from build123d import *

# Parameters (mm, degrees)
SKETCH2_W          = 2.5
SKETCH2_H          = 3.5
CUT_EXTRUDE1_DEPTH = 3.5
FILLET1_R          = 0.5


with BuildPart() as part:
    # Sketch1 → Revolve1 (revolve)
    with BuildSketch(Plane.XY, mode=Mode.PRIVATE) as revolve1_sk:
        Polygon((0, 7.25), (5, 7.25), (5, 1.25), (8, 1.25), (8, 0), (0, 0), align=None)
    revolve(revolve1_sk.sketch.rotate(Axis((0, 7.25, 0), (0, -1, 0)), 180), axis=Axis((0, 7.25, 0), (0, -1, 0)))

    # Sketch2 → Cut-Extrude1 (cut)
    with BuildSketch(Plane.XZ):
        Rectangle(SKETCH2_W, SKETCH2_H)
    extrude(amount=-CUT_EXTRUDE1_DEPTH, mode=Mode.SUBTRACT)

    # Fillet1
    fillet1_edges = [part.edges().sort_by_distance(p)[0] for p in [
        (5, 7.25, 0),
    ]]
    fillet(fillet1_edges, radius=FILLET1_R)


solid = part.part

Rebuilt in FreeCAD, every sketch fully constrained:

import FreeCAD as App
import Part
import Sketcher
from FreeCAD import Vector
Q = App.Units.Quantity


def edges_at(feature, points):
    """Names of the edges that pass closest to the given points."""
    edges = feature.Shape.Edges
    near = lambda p: min(range(len(edges)), key=lambda i: edges[i].distToShape(Part.Vertex(*p))[0])
    return sorted({f"Edge{near(p) + 1}" for p in points})


def add_polygon(sketch, points):
    """Adds a closed chain of lines whose ends are joined by coincident constraints."""
    first, n = sketch.GeometryCount, len(points)
    for a, b in zip(points, points[1:] + points[:1]):
        sketch.addGeometry(Part.LineSegment(App.Vector(*a, 0), App.Vector(*b, 0)), False)
    for i in range(n):
        sketch.addConstraint(Sketcher.Constraint("Coincident", first + i, 2, first + (i + 1) % n, 1))

doc = App.newDocument("Part")
body = doc.addObject("PartDesign::Body", "Body")

# Sketch on XY plane
sketch1 = doc.addObject("Sketcher::SketchObject", "Sketch")
body.addObject(sketch1)
sketch1.AttachmentSupport = (doc.XY_Plane, [""])
sketch1.MapMode = "FlatFace"
add_polygon(sketch1, [(5, 7.2), (0, 7.2), (0, 0), (8, 0), (8, 1.2), (5, 1.2)])  # lines 0-5
sketch1.addConstraint([
    Sketcher.Constraint("Horizontal", 0),
    Sketcher.Constraint("Vertical", 1),
    Sketcher.Constraint("Horizontal", 2),
    Sketcher.Constraint("Vertical", 3),
    Sketcher.Constraint("Horizontal", 4),
    Sketcher.Constraint("Vertical", 5),
    Sketcher.Constraint("Coincident", 1, 2, -1, 1),
    Sketcher.Constraint("DistanceX", 0, 2, 0, 1, Q("5 mm")),
    Sketcher.Constraint("DistanceX", 2, 1, 2, 2, Q("8 mm")),
    Sketcher.Constraint("DistanceY", 5, 1, 5, 2, Q("6 mm")),
    Sketcher.Constraint("DistanceY", 1, 2, 1, 1, Q("7.25 mm")),
])
revolution = doc.addObject("PartDesign::Revolution", "Revolution")
body.addObject(revolution)
revolution.Profile = sketch1
revolution.ReferenceAxis = (sketch1, ["V_Axis"])
revolution.Angle = 360

# Sketch on XZ plane
sketch2 = doc.addObject("Sketcher::SketchObject", "Sketch001")
body.addObject(sketch2)
sketch2.AttachmentSupport = (doc.XZ_Plane, [""])
sketch2.MapMode = "FlatFace"
add_polygon(sketch2, [(-1.2, 1.8), (-1.2, -1.8), (1.2, -1.8), (1.2, 1.8)])  # lines 0-3
sketch2.addConstraint([
    Sketcher.Constraint("Vertical", 0),
    Sketcher.Constraint("Horizontal", 1),
    Sketcher.Constraint("Vertical", 2),
    Sketcher.Constraint("Horizontal", 3),
    Sketcher.Constraint("Symmetric", 0, 2, 2, 2, -1, 1),
    Sketcher.Constraint("DistanceX", 1, 1, 1, 2, Q("2.5 mm")),
    Sketcher.Constraint("DistanceY", 0, 2, 0, 1, Q("3.5 mm")),
])
pocket1 = doc.addObject("PartDesign::Pocket", "Pocket")
body.addObject(pocket1)
pocket1.Profile = sketch2
pocket1.Length = 3.5
doc.recompute()

fillet = doc.addObject("PartDesign::Fillet", "Fillet")
body.addObject(fillet)
fillet.Base = (pocket1, edges_at(pocket1, [(5, 7.25, 0)]))
fillet.Radius = 0.5

doc.recompute()
